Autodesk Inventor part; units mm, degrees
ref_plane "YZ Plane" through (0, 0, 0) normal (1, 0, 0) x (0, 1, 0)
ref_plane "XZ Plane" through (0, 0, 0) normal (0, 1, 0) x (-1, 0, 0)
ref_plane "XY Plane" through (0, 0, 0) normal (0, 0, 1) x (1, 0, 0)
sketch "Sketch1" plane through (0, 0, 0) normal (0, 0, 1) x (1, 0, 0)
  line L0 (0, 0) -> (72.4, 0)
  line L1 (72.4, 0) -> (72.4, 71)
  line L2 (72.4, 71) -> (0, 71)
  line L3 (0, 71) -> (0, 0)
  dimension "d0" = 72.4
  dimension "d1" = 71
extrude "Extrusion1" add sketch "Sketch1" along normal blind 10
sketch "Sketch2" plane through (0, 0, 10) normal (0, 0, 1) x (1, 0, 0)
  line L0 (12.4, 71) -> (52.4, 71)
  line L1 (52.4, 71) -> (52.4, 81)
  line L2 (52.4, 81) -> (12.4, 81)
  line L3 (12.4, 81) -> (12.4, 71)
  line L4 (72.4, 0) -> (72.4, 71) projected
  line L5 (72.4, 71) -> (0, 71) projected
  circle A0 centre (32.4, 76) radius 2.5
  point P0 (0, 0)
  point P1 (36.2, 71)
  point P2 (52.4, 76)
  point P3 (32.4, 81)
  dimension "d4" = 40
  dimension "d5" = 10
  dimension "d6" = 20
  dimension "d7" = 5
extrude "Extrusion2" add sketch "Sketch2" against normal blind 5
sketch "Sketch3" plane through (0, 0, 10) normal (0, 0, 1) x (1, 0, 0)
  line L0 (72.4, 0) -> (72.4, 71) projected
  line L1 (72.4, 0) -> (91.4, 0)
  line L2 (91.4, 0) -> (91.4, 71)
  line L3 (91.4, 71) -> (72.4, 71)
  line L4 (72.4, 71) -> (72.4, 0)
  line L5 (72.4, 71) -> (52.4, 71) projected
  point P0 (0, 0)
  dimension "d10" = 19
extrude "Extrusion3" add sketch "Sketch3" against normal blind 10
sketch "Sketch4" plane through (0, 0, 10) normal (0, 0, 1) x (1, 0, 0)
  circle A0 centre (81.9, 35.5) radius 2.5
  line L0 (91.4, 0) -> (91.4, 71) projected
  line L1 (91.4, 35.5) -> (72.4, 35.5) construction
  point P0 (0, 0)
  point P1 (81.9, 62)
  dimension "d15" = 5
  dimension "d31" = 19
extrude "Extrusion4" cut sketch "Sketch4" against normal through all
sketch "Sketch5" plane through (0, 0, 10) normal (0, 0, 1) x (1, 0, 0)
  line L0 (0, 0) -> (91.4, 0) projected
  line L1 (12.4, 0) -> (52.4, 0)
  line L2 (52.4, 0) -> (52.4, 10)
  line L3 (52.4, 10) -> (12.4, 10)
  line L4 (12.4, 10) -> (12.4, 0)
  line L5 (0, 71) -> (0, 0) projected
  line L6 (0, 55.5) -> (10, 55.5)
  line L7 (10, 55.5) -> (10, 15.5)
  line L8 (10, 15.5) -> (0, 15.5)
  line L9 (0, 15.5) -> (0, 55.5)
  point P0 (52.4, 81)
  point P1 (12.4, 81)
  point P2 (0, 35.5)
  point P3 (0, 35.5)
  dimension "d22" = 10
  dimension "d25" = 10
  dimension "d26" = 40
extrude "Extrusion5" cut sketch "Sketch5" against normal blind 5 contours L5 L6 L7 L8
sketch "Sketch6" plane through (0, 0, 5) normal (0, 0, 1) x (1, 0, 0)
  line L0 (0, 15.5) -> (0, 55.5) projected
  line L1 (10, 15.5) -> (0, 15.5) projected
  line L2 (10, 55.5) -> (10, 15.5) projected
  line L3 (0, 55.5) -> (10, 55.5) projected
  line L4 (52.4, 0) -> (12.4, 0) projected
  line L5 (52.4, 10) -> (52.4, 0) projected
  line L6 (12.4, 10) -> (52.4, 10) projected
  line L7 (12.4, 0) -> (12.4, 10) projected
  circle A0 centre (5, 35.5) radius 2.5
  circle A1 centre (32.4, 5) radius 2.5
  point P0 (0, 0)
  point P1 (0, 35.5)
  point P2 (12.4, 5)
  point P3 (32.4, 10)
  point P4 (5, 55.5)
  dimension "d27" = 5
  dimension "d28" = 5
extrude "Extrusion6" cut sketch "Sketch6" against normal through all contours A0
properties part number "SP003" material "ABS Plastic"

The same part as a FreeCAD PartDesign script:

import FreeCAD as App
import Part
import Sketcher


def add_polygon(sketch, points):
    """Adds a closed chain of lines whose ends are joined by coincident constraints."""
    first, n = sketch.GeometryCount, len(points)
    for a, b in zip(points, points[1:] + points[:1]):
        sketch.addGeometry(Part.LineSegment(App.Vector(*a, 0), App.Vector(*b, 0)), False)
    for i in range(n):
        sketch.addConstraint(Sketcher.Constraint("Coincident", first + i, 2, first + (i + 1) % n, 1))

doc = App.newDocument("Part")
body = doc.addObject("PartDesign::Body", "Body")

# Sketch on XY plane
sketch1 = body.newObject("Sketcher::SketchObject", "Sketch")
sketch1.AttachmentSupport = (doc.getObject("XY_Plane"), [""])
sketch1.MapMode = "FlatFace"
add_polygon(sketch1, [(0, 71), (0, 0), (72, 0), (72, 71)])  # lines 0-3
sketch1.addConstraint(Sketcher.Constraint("Vertical", 0))
sketch1.addConstraint(Sketcher.Constraint("Horizontal", 1))
sketch1.addConstraint(Sketcher.Constraint("Vertical", 2))
sketch1.addConstraint(Sketcher.Constraint("Horizontal", 3))
sketch1.addConstraint(Sketcher.Constraint("Coincident", 0, 2, -1, 1))
sketch1.addConstraint(Sketcher.Constraint("DistanceY", 0, 2, 0, 1, 71.0))
sketch1.addConstraint(Sketcher.Constraint("DistanceX", 1, 1, 1, 2, 72.4))
pad1 = body.newObject("PartDesign::Pad", "Pad")
pad1.Profile = sketch1
pad1.Length = 10

# Sketch on XY plane
sketch2 = body.newObject("Sketcher::SketchObject", "Sketch001")
sketch2.AttachmentSupport = (doc.getObject("XY_Plane"), [""])
sketch2.MapMode = "FlatFace"
sketch2.AttachmentOffset = App.Placement(App.Vector(0, 0, 10), App.Rotation())
add_polygon(sketch2, [(12.4, 81), (12.4, 71), (52.4, 71), (52.4, 81)])  # lines 0-3
sketch2.addGeometry(Part.Circle(App.Vector(32.4, 76, 0), App.Vector(0, 0, 1), 2.5), False)  # 4
sketch2.addConstraint(Sketcher.Constraint("Vertical", 0))
sketch2.addConstraint(Sketcher.Constraint("Horizontal", 1))
sketch2.addConstraint(Sketcher.Constraint("Vertical", 2))
sketch2.addConstraint(Sketcher.Constraint("Horizontal", 3))
sketch2.addConstraint(Sketcher.Constraint("Diameter", 4, 5.0))
sketch2.addConstraint(Sketcher.Constraint("DistanceX", 1, 1, 1, 2, 40.0))
sketch2.addConstraint(Sketcher.Constraint("DistanceY", 0, 2, 0, 1, 10.0))
sketch2.addConstraint(Sketcher.Constraint("DistanceX", 0, 2, 4, 3, 20.0))
sketch2.addConstraint(Sketcher.Constraint("DistanceY", 0, 2, 4, 3, 5.0))
sketch2.addConstraint(Sketcher.Constraint("DistanceY", -1, 1, 4, 3, 76.0))
sketch2.addConstraint(Sketcher.Constraint("DistanceX", -1, 1, 4, 3, 32.4))
pad2 = body.newObject("PartDesign::Pad", "Pad001")
pad2.Profile = sketch2
pad2.Length = 5
pad2.Reversed = True

# Sketch on XY plane
sketch3 = body.newObject("Sketcher::SketchObject", "Sketch002")
sketch3.AttachmentSupport = (doc.getObject("XY_Plane"), [""])
sketch3.MapMode = "FlatFace"
sketch3.AttachmentOffset = App.Placement(App.Vector(0, 0, 10), App.Rotation())
add_polygon(sketch3, [(72, 71), (72, 0), (91, 0), (91, 71)])  # lines 0-3
sketch3.addConstraint(Sketcher.Constraint("Vertical", 0))
sketch3.addConstraint(Sketcher.Constraint("Horizontal", 1))
sketch3.addConstraint(Sketcher.Constraint("Vertical", 2))
sketch3.addConstraint(Sketcher.Constraint("Horizontal", 3))
sketch3.addConstraint(Sketcher.Constraint("PointOnObject", 0, 2, -1))
sketch3.addConstraint(Sketcher.Constraint("DistanceX", 1, 1, 1, 2, 19.0))
sketch3.addConstraint(Sketcher.Constraint("DistanceY", 0, 2, 0, 1, 71.0))
sketch3.addConstraint(Sketcher.Constraint("DistanceX", -1, 1, 0, 2, 72.4))
pad3 = body.newObject("PartDesign::Pad", "Pad002")
pad3.Profile = sketch3
pad3.Length = 10
pad3.Reversed = True

# Sketch on XY plane
sketch4 = body.newObject("Sketcher::SketchObject", "Sketch003")
sketch4.AttachmentSupport = (doc.getObject("XY_Plane"), [""])
sketch4.MapMode = "FlatFace"
sketch4.AttachmentOffset = App.Placement(App.Vector(0, 0, 10), App.Rotation())
sketch4.addGeometry(Part.Circle(App.Vector(81.9, 35.5, 0), App.Vector(0, 0, 1), 2.5), False)
sketch4.addConstraint(Sketcher.Constraint("Diameter", 0, 5.0))
sketch4.addConstraint(Sketcher.Constraint("DistanceX", -1, 1, 0, 3, 81.9))
sketch4.addConstraint(Sketcher.Constraint("DistanceY", -1, 1, 0, 3, 35.5))
pocket1 = body.newObject("PartDesign::Pocket", "Pocket")
pocket1.Profile = sketch4
pocket1.Type = "ThroughAll"

# Sketch on XY plane
sketch5 = body.newObject("Sketcher::SketchObject", "Sketch004")
sketch5.AttachmentSupport = (doc.getObject("XY_Plane"), [""])
sketch5.MapMode = "FlatFace"
sketch5.AttachmentOffset = App.Placement(App.Vector(0, 0, 10), App.Rotation())
add_polygon(sketch5, [(0, 56), (0, 16), (10, 16), (10, 56)])  # lines 0-3
sketch5.addConstraint(Sketcher.Constraint("Vertical", 0))
sketch5.addConstraint(Sketcher.Constraint("Horizontal", 1))
sketch5.addConstraint(Sketcher.Constraint("Vertical", 2))
sketch5.addConstraint(Sketcher.Constraint("Horizontal", 3))
sketch5.addConstraint(Sketcher.Constraint("PointOnObject", 0, 2, -2))
sketch5.addConstraint(Sketcher.Constraint("DistanceX", 1, 1, 1, 2, 10.0))
sketch5.addConstraint(Sketcher.Constraint("DistanceY", 0, 2, 0, 1, 40.0))
sketch5.addConstraint(Sketcher.Constraint("DistanceY", -1, 1, 0, 2, 15.5))
pocket2 = body.newObject("PartDesign::Pocket", "Pocket001")
pocket2.Profile = sketch5
pocket2.Length = 5

# Sketch on XY plane
sketch6 = body.newObject("Sketcher::SketchObject", "Sketch005")
sketch6.AttachmentSupport = (doc.getObject("XY_Plane"), [""])
sketch6.MapMode = "FlatFace"
sketch6.AttachmentOffset = App.Placement(App.Vector(0, 0, 5), App.Rotation())
sketch6.addGeometry(Part.Circle(App.Vector(5, 35.5, 0), App.Vector(0, 0, 1), 2.5), False)
sketch6.addConstraint(Sketcher.Constraint("Diameter", 0, 5.0))
sketch6.addConstraint(Sketcher.Constraint("DistanceX", -1, 1, 0, 3, 5.0))
sketch6.addConstraint(Sketcher.Constraint("DistanceY", -1, 1, 0, 3, 35.5))
pocket3 = body.newObject("PartDesign::Pocket", "Pocket002")
pocket3.Profile = sketch6
pocket3.Type = "ThroughAll"

doc.recompute()
